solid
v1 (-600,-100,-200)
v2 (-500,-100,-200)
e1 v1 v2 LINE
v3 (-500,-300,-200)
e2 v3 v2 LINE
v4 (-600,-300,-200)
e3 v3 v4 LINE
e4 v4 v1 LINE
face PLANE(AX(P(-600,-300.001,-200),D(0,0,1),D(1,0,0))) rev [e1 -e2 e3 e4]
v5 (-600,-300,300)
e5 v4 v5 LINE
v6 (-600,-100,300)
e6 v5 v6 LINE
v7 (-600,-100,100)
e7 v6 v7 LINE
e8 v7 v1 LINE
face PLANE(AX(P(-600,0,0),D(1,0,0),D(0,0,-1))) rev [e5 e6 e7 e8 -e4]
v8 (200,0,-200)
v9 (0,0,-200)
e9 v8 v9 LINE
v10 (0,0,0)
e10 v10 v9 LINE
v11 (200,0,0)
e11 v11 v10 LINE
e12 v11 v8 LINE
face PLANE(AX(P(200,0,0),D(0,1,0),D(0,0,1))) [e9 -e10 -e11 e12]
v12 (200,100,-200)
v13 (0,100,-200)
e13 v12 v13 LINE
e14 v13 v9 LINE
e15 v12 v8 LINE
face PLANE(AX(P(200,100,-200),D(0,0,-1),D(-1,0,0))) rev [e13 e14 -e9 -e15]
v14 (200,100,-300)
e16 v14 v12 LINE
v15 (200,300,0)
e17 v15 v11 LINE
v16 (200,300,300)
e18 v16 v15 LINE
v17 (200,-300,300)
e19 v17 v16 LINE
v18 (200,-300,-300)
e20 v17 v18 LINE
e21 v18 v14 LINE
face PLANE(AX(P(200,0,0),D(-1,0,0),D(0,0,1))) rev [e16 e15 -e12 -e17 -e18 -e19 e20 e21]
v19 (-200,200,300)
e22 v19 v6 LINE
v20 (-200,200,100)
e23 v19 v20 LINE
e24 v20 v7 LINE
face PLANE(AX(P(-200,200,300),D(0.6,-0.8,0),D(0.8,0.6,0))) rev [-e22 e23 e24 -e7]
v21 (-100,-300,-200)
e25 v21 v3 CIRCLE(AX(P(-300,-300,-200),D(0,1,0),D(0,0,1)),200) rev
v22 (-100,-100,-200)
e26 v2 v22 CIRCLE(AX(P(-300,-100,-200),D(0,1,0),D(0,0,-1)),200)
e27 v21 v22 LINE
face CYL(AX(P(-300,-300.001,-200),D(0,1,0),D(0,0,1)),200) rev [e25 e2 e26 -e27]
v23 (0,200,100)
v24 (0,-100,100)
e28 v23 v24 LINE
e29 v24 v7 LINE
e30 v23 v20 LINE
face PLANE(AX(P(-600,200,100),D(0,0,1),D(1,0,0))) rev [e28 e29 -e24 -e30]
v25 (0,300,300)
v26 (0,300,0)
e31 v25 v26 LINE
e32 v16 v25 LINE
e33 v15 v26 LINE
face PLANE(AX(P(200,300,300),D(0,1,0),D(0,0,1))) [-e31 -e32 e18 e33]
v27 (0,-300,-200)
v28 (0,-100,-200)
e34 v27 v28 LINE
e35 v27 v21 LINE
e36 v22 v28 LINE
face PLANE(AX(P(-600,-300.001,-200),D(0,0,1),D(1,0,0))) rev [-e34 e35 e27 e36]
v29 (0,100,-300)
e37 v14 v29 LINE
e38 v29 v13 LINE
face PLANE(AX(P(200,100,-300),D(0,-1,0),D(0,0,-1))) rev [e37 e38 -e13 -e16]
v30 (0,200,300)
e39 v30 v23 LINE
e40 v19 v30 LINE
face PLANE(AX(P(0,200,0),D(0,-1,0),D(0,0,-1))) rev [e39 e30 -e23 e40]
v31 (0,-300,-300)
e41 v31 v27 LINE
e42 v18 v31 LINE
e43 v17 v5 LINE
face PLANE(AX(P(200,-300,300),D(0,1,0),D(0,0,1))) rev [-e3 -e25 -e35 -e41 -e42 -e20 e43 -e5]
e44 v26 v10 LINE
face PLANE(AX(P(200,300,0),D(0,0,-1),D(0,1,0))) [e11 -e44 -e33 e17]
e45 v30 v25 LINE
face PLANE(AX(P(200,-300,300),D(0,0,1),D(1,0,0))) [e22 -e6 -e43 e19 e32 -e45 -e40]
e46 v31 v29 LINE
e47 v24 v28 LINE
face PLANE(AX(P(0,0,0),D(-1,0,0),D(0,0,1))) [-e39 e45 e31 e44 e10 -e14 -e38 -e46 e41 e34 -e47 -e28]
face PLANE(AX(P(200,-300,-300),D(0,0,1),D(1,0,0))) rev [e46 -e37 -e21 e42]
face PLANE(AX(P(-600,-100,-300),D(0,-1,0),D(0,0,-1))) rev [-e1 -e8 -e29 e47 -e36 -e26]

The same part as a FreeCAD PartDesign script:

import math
import FreeCAD as App
import Part
import Sketcher

V = App.Vector


def add_polygon(sketch, points):
    """Adds a closed chain of lines whose ends are joined by coincident constraints."""
    first, n = sketch.GeometryCount, len(points)
    for a, b in zip(points, points[1:] + points[:1]):
        sketch.addGeometry(Part.LineSegment(App.Vector(*a, 0), App.Vector(*b, 0)), False)
    for i in range(n):
        sketch.addConstraint(Sketcher.Constraint("Coincident", first + i, 2, first + (i + 1) % n, 1))

doc = App.newDocument("Part")
body = doc.addObject("PartDesign::Body", "Body")

sketch1 = body.newObject("Sketcher::SketchObject", "Sketch")
sketch1.AttachmentSupport = (doc.getObject("YZ_Plane"), [""])
sketch1.MapMode = "FlatFace"
add_polygon(sketch1, [(-300, 300), (-300, -300), (100, -300), (100, -200), (0, -200), (0, 0), (300, 0), (300, 300)])
sketch1.addConstraint([
    Sketcher.Constraint("Vertical", 0),
    Sketcher.Constraint("Horizontal", 1),
    Sketcher.Constraint("Vertical", 2),
    Sketcher.Constraint("Horizontal", 3),
    Sketcher.Constraint("Vertical", 4),
    Sketcher.Constraint("Horizontal", 5),
    Sketcher.Constraint("Vertical", 6),
    Sketcher.Constraint("Horizontal", 7),
    Sketcher.Constraint("Coincident", 4, 2, -1, 1),
    Sketcher.Constraint("Symmetric", 0, 2, 6, 2, -1, 1),
    Sketcher.Constraint("Equal", 7, 0),
    Sketcher.Constraint("Equal", 3, 2),
    Sketcher.Constraint("DistanceX", 1, 1, 1, 2, 400.0),
    Sketcher.Constraint("DistanceX", 3, 2, 3, 1, 100.0),
])
pad1 = body.newObject("PartDesign::Pad", "Pad")
pad1.Profile = sketch1
pad1.Length = 200

sketch2 = body.newObject("Sketcher::SketchObject", "Sketch001")
sketch2.AttachmentSupport = (doc.getObject("YZ_Plane"), [""])
sketch2.MapMode = "FlatFace"
add_polygon(sketch2, [(-100, -300), (-300, -300), (-300, 300), (-100, 300)])
sketch2.addConstraint([
    Sketcher.Constraint("Horizontal", 0),
    Sketcher.Constraint("Vertical", 1),
    Sketcher.Constraint("Horizontal", 2),
    Sketcher.Constraint("Vertical", 3),
    Sketcher.Constraint("DistanceX", 0, 2, 0, 1, 200.0),
    Sketcher.Constraint("DistanceY", 1, 1, 1, 2, 600.0),
    Sketcher.Constraint("DistanceX", 0, 2, -1, 1, 300.0),
    Sketcher.Constraint("DistanceY", 0, 2, -1, 1, 300.0),
])
pad2 = body.newObject("PartDesign::Pad", "Pad001")
pad2.Profile = sketch2
pad2.Length = 600
pad2.Reversed = True

sketch3 = body.newObject("Sketcher::SketchObject", "Sketch002")
sketch3.AttachmentSupport = (doc.getObject("XZ_Plane"), [""])
sketch3.MapMode = "FlatFace"
sketch3.AttachmentOffset = App.Placement(V(0, 0, 100), App.Rotation())
add_polygon(sketch3, [(-600, -300), (-600, -200), (0, -200), (0, -300)])
sketch3.addConstraint([
    Sketcher.Constraint("Vertical", 0),
    Sketcher.Constraint("Horizontal", 1),
    Sketcher.Constraint("Vertical", 2),
    Sketcher.Constraint("Horizontal", 3),
    Sketcher.Constraint("PointOnObject", 1, 2, -2),
    Sketcher.Constraint("DistanceX", 1, 1, 1, 2, 600.0),
    Sketcher.Constraint("DistanceY", 0, 1, 0, 2, 100.0),
    Sketcher.Constraint("DistanceY", 0, 2, -1, 1, 200.0),
])
pocket1 = body.newObject("PartDesign::Pocket", "Pocket")
pocket1.Profile = sketch3
pocket1.Type = "UpToFirst"
pocket1.Reversed = True

sketch4 = body.newObject("Sketcher::SketchObject", "Sketch003")
sketch4.AttachmentSupport = (doc.getObject("XZ_Plane"), [""])
sketch4.MapMode = "FlatFace"
sketch4.AttachmentOffset = App.Placement(V(0, 0, 100), App.Rotation())
sketch4.addGeometry([
    Part.LineSegment(V(-100, -200, 0), V(-500, -200, 0)),
    Part.ArcOfCircle(Part.Circle(V(-300, -200, 0), V(0, 0, 1), 200), math.radians(0), math.radians(180)),
], False)
sketch4.addConstraint([
    Sketcher.Constraint("Coincident", 0, 1, 1, 1),
    Sketcher.Constraint("Coincident", 1, 2, 0, 2),
    Sketcher.Constraint("Horizontal", 0),
    Sketcher.Constraint("Horizontal", 1, 3, 0, 1),
    Sketcher.Constraint("Radius", 1, 200.0),
    Sketcher.Constraint("DistanceX", 1, 3, -1, 1, 300.0),
    Sketcher.Constraint("DistanceY", 1, 3, -1, 1, 200.0),
])
pocket2 = body.newObject("PartDesign::Pocket", "Pocket001")
pocket2.Profile = sketch4
pocket2.Type = "UpToFirst"
pocket2.Reversed = True

sketch5 = body.newObject("Sketcher::SketchObject", "Sketch004")
sketch5.AttachmentSupport = (doc.getObject("XZ_Plane"), [""])
sketch5.MapMode = "FlatFace"
sketch5.AttachmentOffset = App.Placement(V(0, 0, 100), App.Rotation())
add_polygon(sketch5, [(-600, 100), (-600, 300), (0, 300), (0, 100)])
sketch5.addConstraint([
    Sketcher.Constraint("Vertical", 0),
    Sketcher.Constraint("Horizontal", 1),
    Sketcher.Constraint("Vertical", 2),
    Sketcher.Constraint("Horizontal", 3),
    Sketcher.Constraint("PointOnObject", 1, 2, -2),
    Sketcher.Constraint("DistanceX", 1, 1, 1, 2, 600.0),
    Sketcher.Constraint("DistanceY", 0, 1, 0, 2, 200.0),
    Sketcher.Constraint("DistanceY", -1, 1, 0, 2, 300.0),
])
pad3 = body.newObject("PartDesign::Pad", "Pad002")
pad3.Profile = sketch5
pad3.Length = 300
pad3.Reversed = True

sketch6 = body.newObject("Sketcher::SketchObject", "Sketch005")
sketch6.AttachmentSupport = (doc.getObject("XY_Plane"), [""])
sketch6.MapMode = "FlatFace"
sketch6.AttachmentOffset = App.Placement(V(0, 0, 100), App.Rotation())
add_polygon(sketch6, [(-200, 200), (-600, -100), (-600, 200)])
sketch6.addConstraint([
    Sketcher.Constraint("Vertical", 1),
    Sketcher.Constraint("Horizontal", 2),
    Sketcher.Constraint("DistanceX", 2, 1, 2, 2, 400.0),
    Sketcher.Constraint("DistanceY", 1, 1, 1, 2, 300.0),
    Sketcher.Constraint("DistanceX", 0, 2, -1, 1, 600.0),
    Sketcher.Constraint("DistanceY", 0, 2, -1, 1, 100.0),
])
pocket3 = body.newObject("PartDesign::Pocket", "Pocket002")
pocket3.Profile = sketch6
pocket3.Length = 200
pocket3.Reversed = True

doc.recompute()
